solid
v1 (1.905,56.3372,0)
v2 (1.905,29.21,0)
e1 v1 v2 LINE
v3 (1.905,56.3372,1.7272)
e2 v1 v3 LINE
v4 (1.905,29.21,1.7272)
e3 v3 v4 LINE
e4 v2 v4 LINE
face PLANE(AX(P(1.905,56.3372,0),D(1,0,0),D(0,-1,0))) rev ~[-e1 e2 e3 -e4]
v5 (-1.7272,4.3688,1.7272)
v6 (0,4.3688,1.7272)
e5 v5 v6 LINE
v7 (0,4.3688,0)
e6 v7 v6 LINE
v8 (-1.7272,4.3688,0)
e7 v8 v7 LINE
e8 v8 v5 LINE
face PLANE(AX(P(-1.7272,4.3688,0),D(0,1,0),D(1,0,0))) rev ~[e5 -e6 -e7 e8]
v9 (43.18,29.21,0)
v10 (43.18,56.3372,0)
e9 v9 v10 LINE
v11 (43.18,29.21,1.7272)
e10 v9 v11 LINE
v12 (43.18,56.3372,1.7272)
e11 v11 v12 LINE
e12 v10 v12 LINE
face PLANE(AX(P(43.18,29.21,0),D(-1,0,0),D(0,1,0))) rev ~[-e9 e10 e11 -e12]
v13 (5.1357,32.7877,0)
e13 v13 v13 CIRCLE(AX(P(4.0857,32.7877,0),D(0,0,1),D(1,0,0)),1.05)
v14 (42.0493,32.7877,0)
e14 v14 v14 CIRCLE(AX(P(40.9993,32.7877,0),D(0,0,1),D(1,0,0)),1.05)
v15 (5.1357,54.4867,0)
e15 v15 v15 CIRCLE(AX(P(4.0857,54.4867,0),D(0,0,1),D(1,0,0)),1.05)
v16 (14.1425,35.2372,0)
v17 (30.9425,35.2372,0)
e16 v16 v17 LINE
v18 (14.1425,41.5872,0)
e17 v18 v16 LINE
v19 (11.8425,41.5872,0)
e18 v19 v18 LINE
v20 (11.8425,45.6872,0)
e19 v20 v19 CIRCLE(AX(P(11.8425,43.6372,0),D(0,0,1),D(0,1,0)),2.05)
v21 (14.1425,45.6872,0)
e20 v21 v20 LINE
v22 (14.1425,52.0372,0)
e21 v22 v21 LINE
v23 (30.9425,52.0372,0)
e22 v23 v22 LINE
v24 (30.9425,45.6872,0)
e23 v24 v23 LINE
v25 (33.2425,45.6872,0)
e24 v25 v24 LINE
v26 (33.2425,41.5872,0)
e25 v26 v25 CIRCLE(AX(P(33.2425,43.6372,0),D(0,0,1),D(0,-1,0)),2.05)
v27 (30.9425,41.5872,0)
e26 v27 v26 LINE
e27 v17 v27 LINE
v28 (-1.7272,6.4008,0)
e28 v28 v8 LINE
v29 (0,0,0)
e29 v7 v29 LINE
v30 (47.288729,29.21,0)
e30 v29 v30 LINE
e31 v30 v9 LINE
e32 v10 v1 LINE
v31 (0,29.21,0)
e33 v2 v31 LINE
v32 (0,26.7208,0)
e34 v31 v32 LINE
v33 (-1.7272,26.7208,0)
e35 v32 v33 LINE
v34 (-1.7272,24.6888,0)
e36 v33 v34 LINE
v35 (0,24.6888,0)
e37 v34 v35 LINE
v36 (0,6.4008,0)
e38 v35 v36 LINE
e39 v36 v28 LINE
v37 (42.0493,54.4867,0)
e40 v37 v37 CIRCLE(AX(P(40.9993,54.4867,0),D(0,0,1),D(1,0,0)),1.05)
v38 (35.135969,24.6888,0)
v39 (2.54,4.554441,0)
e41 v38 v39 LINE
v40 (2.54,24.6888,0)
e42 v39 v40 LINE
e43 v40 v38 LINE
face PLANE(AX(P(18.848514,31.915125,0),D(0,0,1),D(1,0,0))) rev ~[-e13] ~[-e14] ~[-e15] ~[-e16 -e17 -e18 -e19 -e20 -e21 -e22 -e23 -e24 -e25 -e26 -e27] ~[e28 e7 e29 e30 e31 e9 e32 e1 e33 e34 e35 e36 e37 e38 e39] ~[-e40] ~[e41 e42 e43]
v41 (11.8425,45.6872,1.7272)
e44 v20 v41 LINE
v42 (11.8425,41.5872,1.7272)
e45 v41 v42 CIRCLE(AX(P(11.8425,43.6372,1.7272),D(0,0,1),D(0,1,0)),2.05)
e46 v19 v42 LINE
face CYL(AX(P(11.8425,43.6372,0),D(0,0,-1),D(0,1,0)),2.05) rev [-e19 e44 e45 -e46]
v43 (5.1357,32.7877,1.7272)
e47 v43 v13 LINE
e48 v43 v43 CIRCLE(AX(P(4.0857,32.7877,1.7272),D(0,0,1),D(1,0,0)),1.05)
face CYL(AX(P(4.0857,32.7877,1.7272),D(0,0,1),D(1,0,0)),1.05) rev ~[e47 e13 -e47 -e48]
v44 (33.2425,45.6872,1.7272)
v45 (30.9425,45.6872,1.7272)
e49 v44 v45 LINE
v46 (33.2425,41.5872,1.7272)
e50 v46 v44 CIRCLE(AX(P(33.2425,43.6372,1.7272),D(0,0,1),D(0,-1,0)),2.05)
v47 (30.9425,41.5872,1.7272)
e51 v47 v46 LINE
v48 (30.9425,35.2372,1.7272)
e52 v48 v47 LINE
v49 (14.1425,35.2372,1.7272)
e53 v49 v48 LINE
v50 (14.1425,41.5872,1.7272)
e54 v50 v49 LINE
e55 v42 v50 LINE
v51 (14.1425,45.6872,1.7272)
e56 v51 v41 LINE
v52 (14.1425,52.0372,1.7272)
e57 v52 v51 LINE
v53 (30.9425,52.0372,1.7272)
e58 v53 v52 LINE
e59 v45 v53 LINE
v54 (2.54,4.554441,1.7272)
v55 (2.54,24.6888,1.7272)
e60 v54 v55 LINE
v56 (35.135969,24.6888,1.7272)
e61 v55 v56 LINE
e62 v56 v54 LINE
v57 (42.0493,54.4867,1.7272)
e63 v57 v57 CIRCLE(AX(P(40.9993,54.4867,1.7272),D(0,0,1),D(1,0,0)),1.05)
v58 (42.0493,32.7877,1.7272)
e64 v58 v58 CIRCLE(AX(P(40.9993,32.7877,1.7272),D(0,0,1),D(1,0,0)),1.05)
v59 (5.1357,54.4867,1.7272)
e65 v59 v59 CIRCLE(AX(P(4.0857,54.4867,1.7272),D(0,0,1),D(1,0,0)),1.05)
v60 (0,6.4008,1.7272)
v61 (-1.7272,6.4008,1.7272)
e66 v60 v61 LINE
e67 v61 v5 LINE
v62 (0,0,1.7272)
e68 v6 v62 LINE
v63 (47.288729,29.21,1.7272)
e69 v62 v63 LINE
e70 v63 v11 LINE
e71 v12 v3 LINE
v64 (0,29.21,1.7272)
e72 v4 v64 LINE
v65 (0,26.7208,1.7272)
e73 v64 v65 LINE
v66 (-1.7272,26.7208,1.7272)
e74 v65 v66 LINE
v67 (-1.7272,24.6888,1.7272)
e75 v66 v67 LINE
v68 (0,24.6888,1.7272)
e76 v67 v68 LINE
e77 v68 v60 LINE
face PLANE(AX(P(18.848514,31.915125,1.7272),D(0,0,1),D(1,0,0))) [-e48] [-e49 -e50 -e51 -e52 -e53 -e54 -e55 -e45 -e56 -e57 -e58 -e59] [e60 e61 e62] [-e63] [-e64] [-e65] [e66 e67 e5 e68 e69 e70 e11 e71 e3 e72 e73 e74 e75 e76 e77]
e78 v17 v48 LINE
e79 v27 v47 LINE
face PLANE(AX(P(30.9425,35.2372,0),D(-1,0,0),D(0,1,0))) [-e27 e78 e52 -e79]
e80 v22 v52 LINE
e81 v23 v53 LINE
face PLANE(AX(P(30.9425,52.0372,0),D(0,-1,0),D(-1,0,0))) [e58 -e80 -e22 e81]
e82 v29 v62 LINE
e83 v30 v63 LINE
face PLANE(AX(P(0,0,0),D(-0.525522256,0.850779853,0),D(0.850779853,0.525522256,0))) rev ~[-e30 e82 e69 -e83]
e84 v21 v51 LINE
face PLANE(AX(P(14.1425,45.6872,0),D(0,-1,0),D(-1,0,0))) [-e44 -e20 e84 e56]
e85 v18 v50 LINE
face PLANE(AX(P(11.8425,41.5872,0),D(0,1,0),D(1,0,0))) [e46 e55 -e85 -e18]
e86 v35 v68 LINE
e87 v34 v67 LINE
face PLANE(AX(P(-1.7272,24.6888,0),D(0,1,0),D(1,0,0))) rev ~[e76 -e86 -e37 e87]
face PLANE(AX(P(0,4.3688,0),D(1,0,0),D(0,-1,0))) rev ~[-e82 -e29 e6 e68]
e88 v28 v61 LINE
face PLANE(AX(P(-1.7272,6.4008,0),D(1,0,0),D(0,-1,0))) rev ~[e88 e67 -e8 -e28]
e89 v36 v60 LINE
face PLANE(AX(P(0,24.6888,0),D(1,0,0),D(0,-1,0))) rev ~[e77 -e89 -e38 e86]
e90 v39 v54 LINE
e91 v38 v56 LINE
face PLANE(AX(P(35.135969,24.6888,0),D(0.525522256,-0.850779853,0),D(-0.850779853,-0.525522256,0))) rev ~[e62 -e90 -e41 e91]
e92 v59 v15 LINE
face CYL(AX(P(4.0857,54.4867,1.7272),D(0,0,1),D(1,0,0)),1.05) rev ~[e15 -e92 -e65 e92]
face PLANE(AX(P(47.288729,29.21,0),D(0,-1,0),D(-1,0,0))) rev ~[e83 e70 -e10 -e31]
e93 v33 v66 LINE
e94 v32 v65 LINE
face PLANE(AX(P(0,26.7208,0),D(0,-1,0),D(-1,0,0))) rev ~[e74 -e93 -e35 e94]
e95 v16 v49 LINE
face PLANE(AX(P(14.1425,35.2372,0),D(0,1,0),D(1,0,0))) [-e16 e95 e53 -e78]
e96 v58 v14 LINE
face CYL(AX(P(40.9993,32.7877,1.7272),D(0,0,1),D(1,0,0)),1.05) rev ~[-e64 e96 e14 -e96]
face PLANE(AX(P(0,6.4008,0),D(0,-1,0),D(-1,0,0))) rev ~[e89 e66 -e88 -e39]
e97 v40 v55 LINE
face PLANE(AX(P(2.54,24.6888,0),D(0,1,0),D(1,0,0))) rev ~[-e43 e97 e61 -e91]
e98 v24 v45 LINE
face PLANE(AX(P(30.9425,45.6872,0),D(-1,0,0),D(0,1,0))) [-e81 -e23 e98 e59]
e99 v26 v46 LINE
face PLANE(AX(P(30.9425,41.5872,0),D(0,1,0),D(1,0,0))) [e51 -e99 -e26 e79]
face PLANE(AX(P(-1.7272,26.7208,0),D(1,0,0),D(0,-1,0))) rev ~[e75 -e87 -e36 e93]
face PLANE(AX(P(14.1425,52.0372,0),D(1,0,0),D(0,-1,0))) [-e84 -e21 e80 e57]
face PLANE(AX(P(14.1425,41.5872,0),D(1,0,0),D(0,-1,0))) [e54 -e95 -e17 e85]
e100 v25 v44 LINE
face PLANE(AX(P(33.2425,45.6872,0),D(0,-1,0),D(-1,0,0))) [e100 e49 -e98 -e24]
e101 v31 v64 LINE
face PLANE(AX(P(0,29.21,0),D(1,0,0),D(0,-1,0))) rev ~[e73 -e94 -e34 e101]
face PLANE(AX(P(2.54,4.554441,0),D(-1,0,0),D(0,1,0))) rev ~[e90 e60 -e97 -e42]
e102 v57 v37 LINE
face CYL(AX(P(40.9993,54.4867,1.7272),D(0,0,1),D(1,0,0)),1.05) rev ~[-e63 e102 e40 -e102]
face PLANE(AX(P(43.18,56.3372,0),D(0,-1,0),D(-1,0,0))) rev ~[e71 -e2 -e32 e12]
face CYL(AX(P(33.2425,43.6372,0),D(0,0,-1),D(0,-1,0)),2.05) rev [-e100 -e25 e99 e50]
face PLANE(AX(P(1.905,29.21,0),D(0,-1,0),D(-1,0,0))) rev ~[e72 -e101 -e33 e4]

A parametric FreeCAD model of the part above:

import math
import FreeCAD as App
import Part
import Sketcher

V = App.Vector
Q = App.Units.Quantity

doc = App.newDocument("Part")
body = doc.addObject("PartDesign::Body", "Body")

sketch1 = body.newObject("Sketcher::SketchObject", "Sketch")
sketch1.AttachmentSupport = (doc.getObject("XY_Plane"), [""])
sketch1.MapMode = "FlatFace"
sketch1.addGeometry(Part.LineSegment(V(0, 0, 0), V(47.3, 29.2, 0)), False)
sketch1.addGeometry(Part.LineSegment(V(47.3, 29.2, 0), V(43.2, 29.2, 0)), False)
sketch1.addGeometry(Part.LineSegment(V(43.2, 29.2, 0), V(43.2, 56.3, 0)), False)
sketch1.addGeometry(Part.LineSegment(V(43.2, 56.3, 0), V(1.9, 56.3, 0)), False)
sketch1.addGeometry(Part.LineSegment(V(1.9, 56.3, 0), V(1.9, 29.2, 0)), False)
sketch1.addGeometry(Part.LineSegment(V(1.9, 29.2, 0), V(0, 29.2, 0)), False)
sketch1.addGeometry(Part.LineSegment(V(0, 29.2, 0), V(0, 26.7, 0)), False)
sketch1.addGeometry(Part.LineSegment(V(0, 26.7, 0), V(-1.7, 26.7, 0)), False)
sketch1.addGeometry(Part.LineSegment(V(-1.7, 26.7, 0), V(-1.7, 24.7, 0)), False)
sketch1.addGeometry(Part.LineSegment(V(-1.7, 24.7, 0), V(0, 24.7, 0)), False)
sketch1.addGeometry(Part.LineSegment(V(0, 24.7, 0), V(0, 6.4, 0)), False)
sketch1.addGeometry(Part.LineSegment(V(0, 6.4, 0), V(-1.7, 6.4, 0)), False)
sketch1.addGeometry(Part.LineSegment(V(-1.7, 6.4, 0), V(-1.7, 4.4, 0)), False)
sketch1.addGeometry(Part.LineSegment(V(-1.7, 4.4, 0), V(0, 4.4, 0)), False)
sketch1.addGeometry(Part.LineSegment(V(0, 4.4, 0), V(0, 0, 0)), False)
sketch1.addGeometry(Part.LineSegment(V(2.5, 4.6, 0), V(2.5, 24.7, 0)), False)
sketch1.addGeometry(Part.LineSegment(V(2.5, 24.7, 0), V(35.1, 24.7, 0)), False)
sketch1.addGeometry(Part.LineSegment(V(35.1, 24.7, 0), V(2.5, 4.6, 0)), False)
sketch1.addGeometry(Part.LineSegment(V(14.1, 35.2, 0), V(14.1, 41.6, 0)), False)
sketch1.addGeometry(Part.LineSegment(V(14.1, 41.6, 0), V(11.8, 41.6, 0)), False)
sketch1.addGeometry(Part.ArcOfCircle(Part.Circle(V(11.8, 43.6, 0), V(0, 0, 1), 2), math.radians(90), math.radians(270)), False)
sketch1.addGeometry(Part.LineSegment(V(11.8, 45.7, 0), V(14.1, 45.7, 0)), False)
sketch1.addGeometry(Part.LineSegment(V(14.1, 45.7, 0), V(14.1, 52, 0)), False)
sketch1.addGeometry(Part.LineSegment(V(14.1, 52, 0), V(30.9, 52, 0)), False)
sketch1.addGeometry(Part.LineSegment(V(30.9, 52, 0), V(30.9, 45.7, 0)), False)
sketch1.addGeometry(Part.LineSegment(V(30.9, 45.7, 0), V(33.2, 45.7, 0)), False)
sketch1.addGeometry(Part.ArcOfCircle(Part.Circle(V(33.2, 43.6, 0), V(0, 0, 1), 2), math.radians(-90), math.radians(90)), False)
sketch1.addGeometry(Part.LineSegment(V(33.2, 41.6, 0), V(30.9, 41.6, 0)), False)
sketch1.addGeometry(Part.LineSegment(V(30.9, 41.6, 0), V(30.9, 35.2, 0)), False)
sketch1.addGeometry(Part.LineSegment(V(30.9, 35.2, 0), V(14.1, 35.2, 0)), False)
sketch1.addConstraint(Sketcher.Constraint("Coincident", 0, 2, 1, 1))
sketch1.addConstraint(Sketcher.Constraint("Coincident", 1, 2, 2, 1))
sketch1.addConstraint(Sketcher.Constraint("Coincident", 2, 2, 3, 1))
sketch1.addConstraint(Sketcher.Constraint("Coincident", 3, 2, 4, 1))
sketch1.addConstraint(Sketcher.Constraint("Coincident", 4, 2, 5, 1))
sketch1.addConstraint(Sketcher.Constraint("Coincident", 5, 2, 6, 1))
sketch1.addConstraint(Sketcher.Constraint("Coincident", 6, 2, 7, 1))
sketch1.addConstraint(Sketcher.Constraint("Coincident", 7, 2, 8, 1))
sketch1.addConstraint(Sketcher.Constraint("Coincident", 8, 2, 9, 1))
sketch1.addConstraint(Sketcher.Constraint("Coincident", 9, 2, 10, 1))
sketch1.addConstraint(Sketcher.Constraint("Coincident", 10, 2, 11, 1))
sketch1.addConstraint(Sketcher.Constraint("Coincident", 11, 2, 12, 1))
sketch1.addConstraint(Sketcher.Constraint("Coincident", 12, 2, 13, 1))
sketch1.addConstraint(Sketcher.Constraint("Coincident", 13, 2, 14, 1))
sketch1.addConstraint(Sketcher.Constraint("Coincident", 14, 2, 0, 1))
sketch1.addConstraint(Sketcher.Constraint("Coincident", 15, 2, 16, 1))
sketch1.addConstraint(Sketcher.Constraint("Coincident", 16, 2, 17, 1))
sketch1.addConstraint(Sketcher.Constraint("Coincident", 17, 2, 15, 1))
sketch1.addConstraint(Sketcher.Constraint("Coincident", 18, 2, 19, 1))
sketch1.addConstraint(Sketcher.Constraint("Tangent", 19, 2, 20, 2))
sketch1.addConstraint(Sketcher.Constraint("Tangent", 20, 1, 21, 1))
sketch1.addConstraint(Sketcher.Constraint("Coincident", 21, 2, 22, 1))
sketch1.addConstraint(Sketcher.Constraint("Coincident", 22, 2, 23, 1))
sketch1.addConstraint(Sketcher.Constraint("Coincident", 23, 2, 24, 1))
sketch1.addConstraint(Sketcher.Constraint("Coincident", 24, 2, 25, 1))
sketch1.addConstraint(Sketcher.Constraint("Tangent", 25, 2, 26, 2))
sketch1.addConstraint(Sketcher.Constraint("Tangent", 26, 1, 27, 1))
sketch1.addConstraint(Sketcher.Constraint("Coincident", 27, 2, 28, 1))
sketch1.addConstraint(Sketcher.Constraint("Coincident", 28, 2, 29, 1))
sketch1.addConstraint(Sketcher.Constraint("Coincident", 29, 2, 18, 1))
sketch1.addConstraint(Sketcher.Constraint("Horizontal", 1))
sketch1.addConstraint(Sketcher.Constraint("Vertical", 2))
sketch1.addConstraint(Sketcher.Constraint("Horizontal", 3))
sketch1.addConstraint(Sketcher.Constraint("Vertical", 4))
sketch1.addConstraint(Sketcher.Constraint("Horizontal", 5))
sketch1.addConstraint(Sketcher.Constraint("Vertical", 6))
sketch1.addConstraint(Sketcher.Constraint("Horizontal", 7))
sketch1.addConstraint(Sketcher.Constraint("Vertical", 8))
sketch1.addConstraint(Sketcher.Constraint("Horizontal", 9))
sketch1.addConstraint(Sketcher.Constraint("Vertical", 10))
sketch1.addConstraint(Sketcher.Constraint("Horizontal", 11))
sketch1.addConstraint(Sketcher.Constraint("Vertical", 12))
sketch1.addConstraint(Sketcher.Constraint("Horizontal", 13))
sketch1.addConstraint(Sketcher.Constraint("Vertical", 14))
sketch1.addConstraint(Sketcher.Constraint("Vertical", 15))
sketch1.addConstraint(Sketcher.Constraint("Horizontal", 16))
sketch1.addConstraint(Sketcher.Constraint("Vertical", 18))
sketch1.addConstraint(Sketcher.Constraint("Horizontal", 19))
sketch1.addConstraint(Sketcher.Constraint("Horizontal", 21))
sketch1.addConstraint(Sketcher.Constraint("Vertical", 22))
sketch1.addConstraint(Sketcher.Constraint("Horizontal", 23))
sketch1.addConstraint(Sketcher.Constraint("Vertical", 24))
sketch1.addConstraint(Sketcher.Constraint("Horizontal", 25))
sketch1.addConstraint(Sketcher.Constraint("Horizontal", 27))
sketch1.addConstraint(Sketcher.Constraint("Vertical", 28))
sketch1.addConstraint(Sketcher.Constraint("Horizontal", 29))
sketch1.addConstraint(Sketcher.Constraint("Coincident", 14, 2, -1, 1))
sketch1.addConstraint(Sketcher.Constraint("Equal", 20, 26))
sketch1.addConstraint(Sketcher.Constraint("PointOnObject", 5, 2, -2))
sketch1.addConstraint(Sketcher.Constraint("PointOnObject", 9, 2, -2))
sketch1.addConstraint(Sketcher.Constraint("Parallel", 0, 17))
sketch1.addConstraint(Sketcher.Constraint("Horizontal", 20, 3, 26, 3))
sketch1.addConstraint(Sketcher.Constraint("Horizontal", 1, 2, 4, 2))
sketch1.addConstraint(Sketcher.Constraint("Horizontal", 9, 2, 15, 2))
sketch1.addConstraint(Sketcher.Constraint("Vertical", 8, 2, 11, 2))
sketch1.addConstraint(Sketcher.Constraint("Vertical", 18, 2, 21, 2))
sketch1.addConstraint(Sketcher.Constraint("Vertical", 24, 2, 27, 2))
sketch1.addConstraint(Sketcher.Constraint("Equal", 21, 25))
sketch1.addConstraint(Sketcher.Constraint("Equal", 8, 12))
sketch1.addConstraint(Sketcher.Constraint("Equal", 18, 22))
sketch1.addConstraint(Sketcher.Constraint("DistanceY", 8, 2, 8, 1, Q("0.08 in")))
sketch1.addConstraint(Sketcher.Constraint("DistanceY", 10, 2, 10, 1, Q("0.72 in")))
sketch1.addConstraint(Sketcher.Constraint("DistanceY", 18, 1, 18, 2, Q("0.25 in")))
sketch1.addConstraint(Sketcher.Constraint("DistanceX", -1, 1, 1, 2, Q("1.7 in")))
sketch1.addConstraint(Sketcher.Constraint("DistanceX", -1, 1, 15, 2, Q("0.1 in")))
sketch1.addConstraint(Sketcher.Constraint("DistanceY", 26, 3, 2, 2, Q("0.5 in")))
sketch1.addConstraint(Sketcher.Constraint("DistanceX", 3, 2, 3, 1, Q("1.625 in")))
sketch1.addConstraint(Sketcher.Constraint("DistanceX", 7, 2, 7, 1, Q("0.068 in")))
sketch1.addConstraint(Sketcher.Constraint("DistanceY", 2, 1, 2, 2, Q("1.068 in")))
sketch1.addConstraint(Sketcher.Constraint("DistanceY", 6, 2, 6, 1, Q("0.098 in")))
sketch1.addConstraint(Sketcher.Constraint("DistanceY", 14, 2, 14, 1, Q("0.172 in")))
sketch1.addConstraint(Sketcher.Constraint("Radius", 20, 2.05))
sketch1.addConstraint(Sketcher.Constraint("DistanceX", 19, 2, 19, 1, 2.3))
sketch1.addConstraint(Sketcher.Constraint("DistanceX", 23, 1, 23, 2, 16.8))
sketch1.addConstraint(Sketcher.Constraint("DistanceX", 1, 2, 1, 1, 4.108729))
sketch1.addConstraint(Sketcher.Constraint("DistanceX", 16, 1, 16, 2, 32.595969))
sketch1.addConstraint(Sketcher.Constraint("DistanceX", -1, 1, 20, 3, 11.8425))
pad1 = body.newObject("PartDesign::Pad", "Pad")
pad1.Profile = sketch1
pad1.Length = Q("0.068 in")

sketch2 = body.newObject("Sketcher::SketchObject", "Sketch001")
sketch2.AttachmentSupport = (doc.getObject("XY_Plane"), [""])
sketch2.MapMode = "FlatFace"
sketch2.AttachmentOffset = App.Placement(V(0, 0, 0.068 * 25.4), App.Rotation())
sketch2.addGeometry(Part.Circle(V(4.1, 54.5, 0), V(0, 0, 1), 1.1), False)
sketch2.addGeometry(Part.Circle(V(4.1, 32.8, 0), V(0, 0, 1), 1.1), False)
sketch2.addGeometry(Part.Circle(V(41, 32.8, 0), V(0, 0, 1), 1.1), False)
sketch2.addGeometry(Part.Circle(V(41, 54.5, 0), V(0, 0, 1), 1.1), False)
sketch2.addConstraint(Sketcher.Constraint("Equal", 0, 1))
sketch2.addConstraint(Sketcher.Constraint("Equal", 1, 2))
sketch2.addConstraint(Sketcher.Constraint("Equal", 2, 3))
sketch2.addConstraint(Sketcher.Constraint("Horizontal", 1, 3, 2, 3))
sketch2.addConstraint(Sketcher.Constraint("Horizontal", 0, 3, 3, 3))
sketch2.addConstraint(Sketcher.Constraint("Vertical", 0, 3, 1, 3))
sketch2.addConstraint(Sketcher.Constraint("Vertical", 2, 3, 3, 3))
sketch2.addConstraint(Sketcher.Constraint("Diameter", 0, 2.1))
sketch2.addConstraint(Sketcher.Constraint("DistanceX", -1, 1, 0, 3, 4.0857))
sketch2.addConstraint(Sketcher.Constraint("DistanceY", -1, 1, 0, 3, 54.4867))
sketch2.addConstraint(Sketcher.Constraint("DistanceY", -1, 1, 1, 3, 32.7877))
sketch2.addConstraint(Sketcher.Constraint("DistanceX", -1, 1, 2, 3, 40.9993))
pocket1 = body.newObject("PartDesign::Pocket", "Pocket")
pocket1.Profile = sketch2
pocket1.Length = Q("0.068 in")

doc.recompute()
